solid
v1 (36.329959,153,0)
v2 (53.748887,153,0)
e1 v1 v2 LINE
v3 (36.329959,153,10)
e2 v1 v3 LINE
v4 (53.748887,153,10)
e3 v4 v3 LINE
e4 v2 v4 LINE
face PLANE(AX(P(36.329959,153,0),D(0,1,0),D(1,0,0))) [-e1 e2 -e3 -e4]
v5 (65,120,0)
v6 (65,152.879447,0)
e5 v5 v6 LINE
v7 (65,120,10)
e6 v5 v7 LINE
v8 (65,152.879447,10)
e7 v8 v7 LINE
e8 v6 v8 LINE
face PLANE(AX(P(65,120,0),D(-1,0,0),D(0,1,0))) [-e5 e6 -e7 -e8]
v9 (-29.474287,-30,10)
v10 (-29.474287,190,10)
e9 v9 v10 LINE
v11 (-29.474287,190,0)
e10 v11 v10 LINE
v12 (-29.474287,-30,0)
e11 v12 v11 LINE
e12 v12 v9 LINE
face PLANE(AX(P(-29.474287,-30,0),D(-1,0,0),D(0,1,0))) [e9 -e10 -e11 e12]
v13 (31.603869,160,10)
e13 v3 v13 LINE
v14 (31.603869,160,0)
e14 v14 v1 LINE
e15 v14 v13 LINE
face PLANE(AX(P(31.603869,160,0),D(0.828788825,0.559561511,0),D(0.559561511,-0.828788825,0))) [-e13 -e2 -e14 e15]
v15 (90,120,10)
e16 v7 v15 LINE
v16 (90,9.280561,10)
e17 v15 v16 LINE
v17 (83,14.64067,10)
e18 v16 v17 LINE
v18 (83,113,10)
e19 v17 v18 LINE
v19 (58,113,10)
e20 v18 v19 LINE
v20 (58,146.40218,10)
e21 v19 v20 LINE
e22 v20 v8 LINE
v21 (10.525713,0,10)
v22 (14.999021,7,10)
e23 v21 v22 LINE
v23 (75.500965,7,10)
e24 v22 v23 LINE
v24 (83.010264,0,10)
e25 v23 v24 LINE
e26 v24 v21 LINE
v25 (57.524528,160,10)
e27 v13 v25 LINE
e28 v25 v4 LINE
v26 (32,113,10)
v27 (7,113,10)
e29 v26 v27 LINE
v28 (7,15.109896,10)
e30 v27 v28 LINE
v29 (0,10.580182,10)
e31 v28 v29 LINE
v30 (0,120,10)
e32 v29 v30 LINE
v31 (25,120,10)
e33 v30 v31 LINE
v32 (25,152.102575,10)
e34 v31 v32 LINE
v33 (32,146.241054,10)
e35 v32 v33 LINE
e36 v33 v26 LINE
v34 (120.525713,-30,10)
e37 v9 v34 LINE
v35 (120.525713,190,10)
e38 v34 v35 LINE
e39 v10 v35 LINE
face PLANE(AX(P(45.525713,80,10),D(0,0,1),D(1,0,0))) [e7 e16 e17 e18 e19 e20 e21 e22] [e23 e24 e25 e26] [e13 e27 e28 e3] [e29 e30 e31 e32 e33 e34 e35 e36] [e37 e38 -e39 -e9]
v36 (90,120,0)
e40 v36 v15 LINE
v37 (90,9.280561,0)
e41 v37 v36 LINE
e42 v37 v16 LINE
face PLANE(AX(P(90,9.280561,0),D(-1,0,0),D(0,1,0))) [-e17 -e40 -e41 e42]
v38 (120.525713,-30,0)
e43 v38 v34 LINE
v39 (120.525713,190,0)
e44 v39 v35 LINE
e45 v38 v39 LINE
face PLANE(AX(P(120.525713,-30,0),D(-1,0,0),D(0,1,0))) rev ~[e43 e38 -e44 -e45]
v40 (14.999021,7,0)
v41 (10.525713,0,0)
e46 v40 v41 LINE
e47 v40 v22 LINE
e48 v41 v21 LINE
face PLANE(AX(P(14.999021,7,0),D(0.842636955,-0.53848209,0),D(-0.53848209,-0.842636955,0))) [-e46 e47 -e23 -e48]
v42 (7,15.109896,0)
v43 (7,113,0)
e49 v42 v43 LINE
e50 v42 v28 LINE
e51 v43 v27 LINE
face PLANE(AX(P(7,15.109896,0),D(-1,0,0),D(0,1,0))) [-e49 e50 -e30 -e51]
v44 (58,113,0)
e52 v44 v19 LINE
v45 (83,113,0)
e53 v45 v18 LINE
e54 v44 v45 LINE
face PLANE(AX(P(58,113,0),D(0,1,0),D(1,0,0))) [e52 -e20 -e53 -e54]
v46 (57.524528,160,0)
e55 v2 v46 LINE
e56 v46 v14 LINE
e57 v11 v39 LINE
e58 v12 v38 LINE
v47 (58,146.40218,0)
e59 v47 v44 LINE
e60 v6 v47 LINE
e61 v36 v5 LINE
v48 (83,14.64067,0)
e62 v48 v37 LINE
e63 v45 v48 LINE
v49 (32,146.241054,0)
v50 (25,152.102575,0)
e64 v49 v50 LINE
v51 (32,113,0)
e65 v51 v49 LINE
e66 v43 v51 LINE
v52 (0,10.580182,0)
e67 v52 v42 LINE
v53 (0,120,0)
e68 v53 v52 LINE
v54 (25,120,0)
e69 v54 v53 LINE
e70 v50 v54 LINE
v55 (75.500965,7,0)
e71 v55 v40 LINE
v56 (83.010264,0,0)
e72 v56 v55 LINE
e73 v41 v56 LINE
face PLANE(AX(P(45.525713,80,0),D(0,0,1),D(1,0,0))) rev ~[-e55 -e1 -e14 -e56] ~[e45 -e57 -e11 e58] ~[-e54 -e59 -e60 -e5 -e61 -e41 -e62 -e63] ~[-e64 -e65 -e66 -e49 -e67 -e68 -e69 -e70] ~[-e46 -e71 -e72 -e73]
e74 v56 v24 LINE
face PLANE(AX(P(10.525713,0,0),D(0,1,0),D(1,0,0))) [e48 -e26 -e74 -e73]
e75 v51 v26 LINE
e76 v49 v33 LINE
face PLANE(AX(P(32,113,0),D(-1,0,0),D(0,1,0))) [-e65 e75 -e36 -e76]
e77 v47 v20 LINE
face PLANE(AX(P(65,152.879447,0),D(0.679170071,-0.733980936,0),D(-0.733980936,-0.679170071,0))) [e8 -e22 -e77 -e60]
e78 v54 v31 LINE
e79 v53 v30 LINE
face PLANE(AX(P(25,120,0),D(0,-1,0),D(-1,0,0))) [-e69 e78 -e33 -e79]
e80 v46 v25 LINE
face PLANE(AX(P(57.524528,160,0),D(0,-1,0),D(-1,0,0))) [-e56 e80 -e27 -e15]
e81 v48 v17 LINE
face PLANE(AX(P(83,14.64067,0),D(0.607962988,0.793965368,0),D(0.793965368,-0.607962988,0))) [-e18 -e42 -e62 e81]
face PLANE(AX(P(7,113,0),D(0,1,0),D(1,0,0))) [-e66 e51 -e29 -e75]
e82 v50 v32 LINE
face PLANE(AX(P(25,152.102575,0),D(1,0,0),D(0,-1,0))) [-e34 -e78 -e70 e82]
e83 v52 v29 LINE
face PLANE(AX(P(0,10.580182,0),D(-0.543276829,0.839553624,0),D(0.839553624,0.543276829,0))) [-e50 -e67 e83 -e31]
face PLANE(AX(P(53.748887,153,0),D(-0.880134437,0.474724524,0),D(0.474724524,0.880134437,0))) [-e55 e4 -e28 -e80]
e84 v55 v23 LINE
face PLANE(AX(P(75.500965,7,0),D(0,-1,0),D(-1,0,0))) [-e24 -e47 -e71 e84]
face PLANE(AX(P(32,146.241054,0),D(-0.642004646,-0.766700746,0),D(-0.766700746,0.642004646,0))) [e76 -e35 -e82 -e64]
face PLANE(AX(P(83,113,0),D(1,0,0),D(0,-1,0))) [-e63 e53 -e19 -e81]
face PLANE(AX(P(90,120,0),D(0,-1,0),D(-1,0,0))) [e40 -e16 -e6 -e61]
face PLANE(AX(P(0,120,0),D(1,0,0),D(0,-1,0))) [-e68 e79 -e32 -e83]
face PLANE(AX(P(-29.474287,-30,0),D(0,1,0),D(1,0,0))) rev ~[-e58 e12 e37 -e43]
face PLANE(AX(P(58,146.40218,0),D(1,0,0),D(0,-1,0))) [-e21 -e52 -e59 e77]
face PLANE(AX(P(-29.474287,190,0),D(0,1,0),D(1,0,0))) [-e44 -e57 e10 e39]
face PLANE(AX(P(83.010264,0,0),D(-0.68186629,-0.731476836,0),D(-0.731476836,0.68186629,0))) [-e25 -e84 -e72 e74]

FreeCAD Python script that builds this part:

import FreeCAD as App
import Part
import Sketcher
Q = App.Units.Quantity

doc = App.newDocument("Part")
body = doc.addObject("PartDesign::Body", "Body")

# Sketch on XY plane
sketch1 = body.newObject("Sketcher::SketchObject", "Sketch")
sketch1.AttachmentSupport = (doc.getObject("XY_Plane"), [""])
sketch1.MapMode = "FlatFace"
sketch1.addGeometry(Part.LineSegment(App.Vector(-29, 190, 0), App.Vector(-29, -30, 0)), False)
sketch1.addGeometry(Part.LineSegment(App.Vector(-29, -30, 0), App.Vector(121, -30, 0)), False)
sketch1.addGeometry(Part.LineSegment(App.Vector(121, -30, 0), App.Vector(121, 190, 0)), False)
sketch1.addGeometry(Part.LineSegment(App.Vector(121, 190, 0), App.Vector(-29, 190, 0)), False)
sketch1.addConstraint(Sketcher.Constraint("Coincident", 0, 2, 1, 1))
sketch1.addConstraint(Sketcher.Constraint("Coincident", 1, 2, 2, 1))
sketch1.addConstraint(Sketcher.Constraint("Coincident", 2, 2, 3, 1))
sketch1.addConstraint(Sketcher.Constraint("Coincident", 3, 2, 0, 1))
sketch1.addConstraint(Sketcher.Constraint("Vertical", 0))
sketch1.addConstraint(Sketcher.Constraint("Horizontal", 1))
sketch1.addConstraint(Sketcher.Constraint("Vertical", 2))
sketch1.addConstraint(Sketcher.Constraint("Horizontal", 3))
sketch1.addConstraint(Sketcher.Constraint("DistanceX", 1, 1, 1, 2, Q("150 mm")))
sketch1.addConstraint(Sketcher.Constraint("DistanceY", 0, 2, 0, 1, Q("220 mm")))
sketch1.addConstraint(Sketcher.Constraint("DistanceY", 0, 2, -1, 1, Q("30 mm")))
sketch1.addConstraint(Sketcher.Constraint("DistanceX", 0, 2, -1, 1, Q("29.474287 mm")))
pad1 = body.newObject("PartDesign::Pad", "Pad")
pad1.Profile = sketch1
pad1.Length = 10

# Sketch on XY plane
sketch2 = body.newObject("Sketcher::SketchObject", "Sketch001")
sketch2.AttachmentSupport = (doc.getObject("XY_Plane"), [""])
sketch2.MapMode = "FlatFace"
sketch2.addGeometry(Part.LineSegment(App.Vector(15, 7, 0), App.Vector(11, 0, 0)), False)
sketch2.addGeometry(Part.LineSegment(App.Vector(11, 0, 0), App.Vector(83, 0, 0)), False)
sketch2.addGeometry(Part.LineSegment(App.Vector(83, 0, 0), App.Vector(76, 7, 0)), False)
sketch2.addGeometry(Part.LineSegment(App.Vector(76, 7, 0), App.Vector(15, 7, 0)), False)
sketch2.addGeometry(Part.LineSegment(App.Vector(25, 120, 0), App.Vector(0, 120, 0)), False)
sketch2.addGeometry(Part.LineSegment(App.Vector(0, 120, 0), App.Vector(0, 11, 0)), False)
sketch2.addGeometry(Part.LineSegment(App.Vector(0, 11, 0), App.Vector(7, 15, 0)), False)
sketch2.addGeometry(Part.LineSegment(App.Vector(7, 15, 0), App.Vector(7, 113, 0)), False)
sketch2.addGeometry(Part.LineSegment(App.Vector(7, 113, 0), App.Vector(32, 113, 0)), False)
sketch2.addGeometry(Part.LineSegment(App.Vector(32, 113, 0), App.Vector(32, 146, 0)), False)
sketch2.addGeometry(Part.LineSegment(App.Vector(32, 146, 0), App.Vector(25, 152, 0)), False)
sketch2.addGeometry(Part.LineSegment(App.Vector(25, 152, 0), App.Vector(25, 120, 0)), False)
sketch2.addGeometry(Part.LineSegment(App.Vector(83, 15, 0), App.Vector(90, 9, 0)), False)
sketch2.addGeometry(Part.LineSegment(App.Vector(90, 9, 0), App.Vector(90, 120, 0)), False)
sketch2.addGeometry(Part.LineSegment(App.Vector(90, 120, 0), App.Vector(65, 120, 0)), False)
sketch2.addGeometry(Part.LineSegment(App.Vector(65, 120, 0), App.Vector(65, 153, 0)), False)
sketch2.addGeometry(Part.LineSegment(App.Vector(65, 153, 0), App.Vector(58, 146, 0)), False)
sketch2.addGeometry(Part.LineSegment(App.Vector(58, 146, 0), App.Vector(58, 113, 0)), False)
sketch2.addGeometry(Part.LineSegment(App.Vector(58, 113, 0), App.Vector(83, 113, 0)), False)
sketch2.addGeometry(Part.LineSegment(App.Vector(83, 113, 0), App.Vector(83, 15, 0)), False)
sketch2.addGeometry(Part.LineSegment(App.Vector(58, 160, 0), App.Vector(32, 160, 0)), False)
sketch2.addGeometry(Part.LineSegment(App.Vector(32, 160, 0), App.Vector(36, 153, 0)), False)
sketch2.addGeometry(Part.LineSegment(App.Vector(36, 153, 0), App.Vector(54, 153, 0)), False)
sketch2.addGeometry(Part.LineSegment(App.Vector(54, 153, 0), App.Vector(58, 160, 0)), False)
sketch2.addConstraint(Sketcher.Constraint("Coincident", 0, 2, 1, 1))
sketch2.addConstraint(Sketcher.Constraint("Coincident", 1, 2, 2, 1))
sketch2.addConstraint(Sketcher.Constraint("Coincident", 2, 2, 3, 1))
sketch2.addConstraint(Sketcher.Constraint("Coincident", 3, 2, 0, 1))
sketch2.addConstraint(Sketcher.Constraint("Coincident", 4, 2, 5, 1))
sketch2.addConstraint(Sketcher.Constraint("Coincident", 5, 2, 6, 1))
sketch2.addConstraint(Sketcher.Constraint("Coincident", 6, 2, 7, 1))
sketch2.addConstraint(Sketcher.Constraint("Coincident", 7, 2, 8, 1))
sketch2.addConstraint(Sketcher.Constraint("Coincident", 8, 2, 9, 1))
sketch2.addConstraint(Sketcher.Constraint("Coincident", 9, 2, 10, 1))
sketch2.addConstraint(Sketcher.Constraint("Coincident", 10, 2, 11, 1))
sketch2.addConstraint(Sketcher.Constraint("Coincident", 11, 2, 4, 1))
sketch2.addConstraint(Sketcher.Constraint("Coincident", 12, 2, 13, 1))
sketch2.addConstraint(Sketcher.Constraint("Coincident", 13, 2, 14, 1))
sketch2.addConstraint(Sketcher.Constraint("Coincident", 14, 2, 15, 1))
sketch2.addConstraint(Sketcher.Constraint("Coincident", 15, 2, 16, 1))
sketch2.addConstraint(Sketcher.Constraint("Coincident", 16, 2, 17, 1))
sketch2.addConstraint(Sketcher.Constraint("Coincident", 17, 2, 18, 1))
sketch2.addConstraint(Sketcher.Constraint("Coincident", 18, 2, 19, 1))
sketch2.addConstraint(Sketcher.Constraint("Coincident", 19, 2, 12, 1))
sketch2.addConstraint(Sketcher.Constraint("Coincident", 20, 2, 21, 1))
sketch2.addConstraint(Sketcher.Constraint("Coincident", 21, 2, 22, 1))
sketch2.addConstraint(Sketcher.Constraint("Coincident", 22, 2, 23, 1))
sketch2.addConstraint(Sketcher.Constraint("Coincident", 23, 2, 20, 1))
sketch2.addConstraint(Sketcher.Constraint("Horizontal", 1))
sketch2.addConstraint(Sketcher.Constraint("Horizontal", 3))
sketch2.addConstraint(Sketcher.Constraint("Horizontal", 4))
sketch2.addConstraint(Sketcher.Constraint("Vertical", 5))
sketch2.addConstraint(Sketcher.Constraint("Vertical", 7))
sketch2.addConstraint(Sketcher.Constraint("Horizontal", 8))
sketch2.addConstraint(Sketcher.Constraint("Vertical", 9))
sketch2.addConstraint(Sketcher.Constraint("Vertical", 11))
sketch2.addConstraint(Sketcher.Constraint("Vertical", 13))
sketch2.addConstraint(Sketcher.Constraint("Horizontal", 14))
sketch2.addConstraint(Sketcher.Constraint("Vertical", 15))
sketch2.addConstraint(Sketcher.Constraint("Vertical", 17))
sketch2.addConstraint(Sketcher.Constraint("Horizontal", 18))
sketch2.addConstraint(Sketcher.Constraint("Vertical", 19))
sketch2.addConstraint(Sketcher.Constraint("Horizontal", 20))
sketch2.addConstraint(Sketcher.Constraint("Horizontal", 22))
sketch2.addConstraint(Sketcher.Constraint("PointOnObject", 0, 2, -1))
sketch2.addConstraint(Sketcher.Constraint("PointOnObject", 4, 2, -2))
sketch2.addConstraint(Sketcher.Constraint("Horizontal", 11, 2, 13, 2))
sketch2.addConstraint(Sketcher.Constraint("Horizontal", 8, 2, 17, 2))
sketch2.addConstraint(Sketcher.Constraint("Equal", 4, 8))
sketch2.addConstraint(Sketcher.Constraint("Equal", 8, 14))
sketch2.addConstraint(Sketcher.Constraint("Equal", 14, 18))
sketch2.addConstraint(Sketcher.Constraint("DistanceX", 4, 2, 4, 1, Q("25 mm")))
sketch2.addConstraint(Sketcher.Constraint("DistanceY", -1, 1, 2, 2, Q("7 mm")))
sketch2.addConstraint(Sketcher.Constraint("DistanceY", -1, 1, 4, 2, Q("120 mm")))
sketch2.addConstraint(Sketcher.Constraint("DistanceX", -1, 1, 6, 2, Q("7 mm")))
sketch2.addConstraint(Sketcher.Constraint("DistanceY", -1, 1, 7, 2, Q("113 mm")))
sketch2.addConstraint(Sketcher.Constraint("DistanceX", -1, 1, 12, 2, Q("90 mm")))
sketch2.addConstraint(Sketcher.Constraint("DistanceX", -1, 1, 16, 2, Q("58 mm")))
sketch2.addConstraint(Sketcher.Constraint("DistanceY", -1, 1, 20, 2, Q("160 mm")))
sketch2.addConstraint(Sketcher.Constraint("DistanceY", -1, 1, 21, 2, Q("153 mm")))
sketch2.addConstraint(Sketcher.Constraint("DistanceX", 1, 1, 1, 2, Q("72.484551 mm")))
sketch2.addConstraint(Sketcher.Constraint("DistanceX", 20, 2, 20, 1, Q("25.920659 mm")))
sketch2.addConstraint(Sketcher.Constraint("DistanceX", 22, 1, 22, 2, Q("17.418928 mm")))
sketch2.addConstraint(Sketcher.Constraint("DistanceY", 13, 1, 13, 2, Q("110.719439 mm")))
sketch2.addConstraint(Sketcher.Constraint("DistanceY", 17, 2, 17, 1, Q("33.40218 mm")))
sketch2.addConstraint(Sketcher.Constraint("DistanceY", 19, 2, 19, 1, Q("98.35933 mm")))
sketch2.addConstraint(Sketcher.Constraint("DistanceX", 2, 2, 1, 2, Q("7.509299 mm")))
sketch2.addConstraint(Sketcher.Constraint("Distance", 10, Q("9.130029 mm")))
sketch2.addConstraint(Sketcher.Constraint("Distance", 21, Q("8.44606 mm")))
sketch2.addConstraint(Sketcher.Constraint("DistanceX", 3, 2, 3, 1, Q("60.501944 mm")))
sketch2.addConstraint(Sketcher.Constraint("DistanceY", 5, 2, 5, 1, Q("109.419818 mm")))
sketch2.addConstraint(Sketcher.Constraint("DistanceY", 7, 1, 7, 2, Q("97.890104 mm")))
sketch2.addConstraint(Sketcher.Constraint("DistanceY", 9, 1, 9, 2, Q("33.241054 mm")))
sketch2.addConstraint(Sketcher.Constraint("DistanceY", 15, 1, 15, 2, Q("32.879447 mm")))
sketch2.addConstraint(Sketcher.Constraint("DistanceX", -1, 1, 3, 2, Q("14.999021 mm")))
sketch2.addConstraint(Sketcher.Constraint("DistanceX", -1, 1, 20, 2, Q("31.603869 mm")))
pocket1 = body.newObject("PartDesign::Pocket", "Pocket")
pocket1.Profile = sketch2
pocket1.Length = 25
pocket1.Reversed = True

doc.recompute()
